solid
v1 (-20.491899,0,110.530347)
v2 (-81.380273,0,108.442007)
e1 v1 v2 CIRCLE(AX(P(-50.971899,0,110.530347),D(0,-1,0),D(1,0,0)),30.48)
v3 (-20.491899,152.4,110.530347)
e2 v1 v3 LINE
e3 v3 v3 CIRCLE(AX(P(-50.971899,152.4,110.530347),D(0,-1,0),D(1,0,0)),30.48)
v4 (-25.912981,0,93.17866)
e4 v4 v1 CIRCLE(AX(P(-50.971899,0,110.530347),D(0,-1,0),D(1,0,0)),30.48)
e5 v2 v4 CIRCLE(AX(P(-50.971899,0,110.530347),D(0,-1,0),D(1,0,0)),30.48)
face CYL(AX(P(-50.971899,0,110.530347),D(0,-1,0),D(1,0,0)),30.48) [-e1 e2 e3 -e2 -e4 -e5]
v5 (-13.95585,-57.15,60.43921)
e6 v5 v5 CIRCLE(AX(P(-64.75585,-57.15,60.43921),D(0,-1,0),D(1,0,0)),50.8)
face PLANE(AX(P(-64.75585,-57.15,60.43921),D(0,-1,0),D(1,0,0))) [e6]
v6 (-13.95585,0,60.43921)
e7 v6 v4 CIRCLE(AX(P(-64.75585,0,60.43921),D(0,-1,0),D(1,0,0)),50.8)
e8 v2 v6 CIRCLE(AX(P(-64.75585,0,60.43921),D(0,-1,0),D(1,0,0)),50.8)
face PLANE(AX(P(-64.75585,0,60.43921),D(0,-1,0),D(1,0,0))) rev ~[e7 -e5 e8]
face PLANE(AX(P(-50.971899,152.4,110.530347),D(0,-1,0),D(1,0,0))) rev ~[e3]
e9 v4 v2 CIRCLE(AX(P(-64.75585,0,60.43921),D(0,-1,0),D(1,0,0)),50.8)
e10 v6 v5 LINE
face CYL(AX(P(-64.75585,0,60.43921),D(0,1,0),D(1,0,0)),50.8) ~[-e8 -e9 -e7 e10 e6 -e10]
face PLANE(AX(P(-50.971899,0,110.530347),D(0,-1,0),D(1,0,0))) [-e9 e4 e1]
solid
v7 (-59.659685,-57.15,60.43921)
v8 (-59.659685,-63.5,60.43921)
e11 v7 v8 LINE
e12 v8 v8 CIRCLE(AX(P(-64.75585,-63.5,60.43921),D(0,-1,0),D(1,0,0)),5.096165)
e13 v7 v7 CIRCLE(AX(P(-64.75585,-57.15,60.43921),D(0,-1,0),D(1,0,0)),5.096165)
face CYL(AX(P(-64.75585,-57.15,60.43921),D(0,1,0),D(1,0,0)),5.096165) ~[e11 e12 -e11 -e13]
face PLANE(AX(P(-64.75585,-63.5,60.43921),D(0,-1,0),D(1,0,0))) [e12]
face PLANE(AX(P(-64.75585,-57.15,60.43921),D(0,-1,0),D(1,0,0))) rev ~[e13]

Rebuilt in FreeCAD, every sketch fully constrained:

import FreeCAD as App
import Part
import Sketcher
from FreeCAD import Vector
Q = App.Units.Quantity

doc = App.newDocument("Part")
body = doc.addObject("PartDesign::Body", "Body")

# Sketch on XZ plane
sketch1 = doc.addObject("Sketcher::SketchObject", "Sketch")
body.addObject(sketch1)
sketch1.AttachmentSupport = (doc.XZ_Plane, [""])
sketch1.MapMode = "FlatFace"
sketch1.addGeometry(Part.Circle(Vector(-65, 60, 0), Vector(0, 0, 1), 51), False)
sketch1.addConstraint(Sketcher.Constraint("Diameter", 0, Q("4 in")))
sketch1.addConstraint(Sketcher.Constraint("DistanceX", 0, 3, -1, 1, 64.75585))
sketch1.addConstraint(Sketcher.Constraint("DistanceY", -1, 1, 0, 3, 60.43921))
pad1 = doc.addObject("PartDesign::Pad", "Pad")
body.addObject(pad1)
pad1.Profile = sketch1
pad1.Length = Q("2.25 in")

# Sketch on XZ plane
sketch2 = doc.addObject("Sketcher::SketchObject", "Sketch001")
body.addObject(sketch2)
sketch2.AttachmentSupport = (doc.XZ_Plane, [""])
sketch2.MapMode = "FlatFace"
sketch2.addGeometry(Part.Circle(Vector(-51, 111, 0), Vector(0, 0, 1), 30), False)
sketch2.addConstraint(Sketcher.Constraint("Diameter", 0, Q("2.4 in")))
sketch2.addConstraint(Sketcher.Constraint("DistanceX", 0, 3, -1, 1, 50.971899))
sketch2.addConstraint(Sketcher.Constraint("DistanceY", -1, 1, 0, 3, 110.530347))
pad2 = doc.addObject("PartDesign::Pad", "Pad001")
body.addObject(pad2)
pad2.Profile = sketch2
pad2.Length = Q("6 in")
pad2.Reversed = True
body2 = doc.addObject("PartDesign::Body", "Body001")

# Sketch on XZ plane
sketch3 = doc.addObject("Sketcher::SketchObject", "Sketch002")
body2.addObject(sketch3)
sketch3.AttachmentSupport = (doc.getObject("XZ_Plane001"), [""])
sketch3.MapMode = "FlatFace"
sketch3.AttachmentOffset = App.Placement(Vector(0, 0, 2.25 * 25.4), App.Rotation())
sketch3.addGeometry(Part.Circle(Vector(-65, 60, 0), Vector(0, 0, 1), 5), False)
sketch3.addConstraint(Sketcher.Constraint("Diameter", 0, 10.19233))
sketch3.addConstraint(Sketcher.Constraint("DistanceX", 0, 3, -1, 1, 64.75585))
sketch3.addConstraint(Sketcher.Constraint("DistanceY", -1, 1, 0, 3, 60.43921))
pad3 = doc.addObject("PartDesign::Pad", "Pad002")
body2.addObject(pad3)
pad3.Profile = sketch3
pad3.Length = Q("0.25 in")

doc.recompute()
